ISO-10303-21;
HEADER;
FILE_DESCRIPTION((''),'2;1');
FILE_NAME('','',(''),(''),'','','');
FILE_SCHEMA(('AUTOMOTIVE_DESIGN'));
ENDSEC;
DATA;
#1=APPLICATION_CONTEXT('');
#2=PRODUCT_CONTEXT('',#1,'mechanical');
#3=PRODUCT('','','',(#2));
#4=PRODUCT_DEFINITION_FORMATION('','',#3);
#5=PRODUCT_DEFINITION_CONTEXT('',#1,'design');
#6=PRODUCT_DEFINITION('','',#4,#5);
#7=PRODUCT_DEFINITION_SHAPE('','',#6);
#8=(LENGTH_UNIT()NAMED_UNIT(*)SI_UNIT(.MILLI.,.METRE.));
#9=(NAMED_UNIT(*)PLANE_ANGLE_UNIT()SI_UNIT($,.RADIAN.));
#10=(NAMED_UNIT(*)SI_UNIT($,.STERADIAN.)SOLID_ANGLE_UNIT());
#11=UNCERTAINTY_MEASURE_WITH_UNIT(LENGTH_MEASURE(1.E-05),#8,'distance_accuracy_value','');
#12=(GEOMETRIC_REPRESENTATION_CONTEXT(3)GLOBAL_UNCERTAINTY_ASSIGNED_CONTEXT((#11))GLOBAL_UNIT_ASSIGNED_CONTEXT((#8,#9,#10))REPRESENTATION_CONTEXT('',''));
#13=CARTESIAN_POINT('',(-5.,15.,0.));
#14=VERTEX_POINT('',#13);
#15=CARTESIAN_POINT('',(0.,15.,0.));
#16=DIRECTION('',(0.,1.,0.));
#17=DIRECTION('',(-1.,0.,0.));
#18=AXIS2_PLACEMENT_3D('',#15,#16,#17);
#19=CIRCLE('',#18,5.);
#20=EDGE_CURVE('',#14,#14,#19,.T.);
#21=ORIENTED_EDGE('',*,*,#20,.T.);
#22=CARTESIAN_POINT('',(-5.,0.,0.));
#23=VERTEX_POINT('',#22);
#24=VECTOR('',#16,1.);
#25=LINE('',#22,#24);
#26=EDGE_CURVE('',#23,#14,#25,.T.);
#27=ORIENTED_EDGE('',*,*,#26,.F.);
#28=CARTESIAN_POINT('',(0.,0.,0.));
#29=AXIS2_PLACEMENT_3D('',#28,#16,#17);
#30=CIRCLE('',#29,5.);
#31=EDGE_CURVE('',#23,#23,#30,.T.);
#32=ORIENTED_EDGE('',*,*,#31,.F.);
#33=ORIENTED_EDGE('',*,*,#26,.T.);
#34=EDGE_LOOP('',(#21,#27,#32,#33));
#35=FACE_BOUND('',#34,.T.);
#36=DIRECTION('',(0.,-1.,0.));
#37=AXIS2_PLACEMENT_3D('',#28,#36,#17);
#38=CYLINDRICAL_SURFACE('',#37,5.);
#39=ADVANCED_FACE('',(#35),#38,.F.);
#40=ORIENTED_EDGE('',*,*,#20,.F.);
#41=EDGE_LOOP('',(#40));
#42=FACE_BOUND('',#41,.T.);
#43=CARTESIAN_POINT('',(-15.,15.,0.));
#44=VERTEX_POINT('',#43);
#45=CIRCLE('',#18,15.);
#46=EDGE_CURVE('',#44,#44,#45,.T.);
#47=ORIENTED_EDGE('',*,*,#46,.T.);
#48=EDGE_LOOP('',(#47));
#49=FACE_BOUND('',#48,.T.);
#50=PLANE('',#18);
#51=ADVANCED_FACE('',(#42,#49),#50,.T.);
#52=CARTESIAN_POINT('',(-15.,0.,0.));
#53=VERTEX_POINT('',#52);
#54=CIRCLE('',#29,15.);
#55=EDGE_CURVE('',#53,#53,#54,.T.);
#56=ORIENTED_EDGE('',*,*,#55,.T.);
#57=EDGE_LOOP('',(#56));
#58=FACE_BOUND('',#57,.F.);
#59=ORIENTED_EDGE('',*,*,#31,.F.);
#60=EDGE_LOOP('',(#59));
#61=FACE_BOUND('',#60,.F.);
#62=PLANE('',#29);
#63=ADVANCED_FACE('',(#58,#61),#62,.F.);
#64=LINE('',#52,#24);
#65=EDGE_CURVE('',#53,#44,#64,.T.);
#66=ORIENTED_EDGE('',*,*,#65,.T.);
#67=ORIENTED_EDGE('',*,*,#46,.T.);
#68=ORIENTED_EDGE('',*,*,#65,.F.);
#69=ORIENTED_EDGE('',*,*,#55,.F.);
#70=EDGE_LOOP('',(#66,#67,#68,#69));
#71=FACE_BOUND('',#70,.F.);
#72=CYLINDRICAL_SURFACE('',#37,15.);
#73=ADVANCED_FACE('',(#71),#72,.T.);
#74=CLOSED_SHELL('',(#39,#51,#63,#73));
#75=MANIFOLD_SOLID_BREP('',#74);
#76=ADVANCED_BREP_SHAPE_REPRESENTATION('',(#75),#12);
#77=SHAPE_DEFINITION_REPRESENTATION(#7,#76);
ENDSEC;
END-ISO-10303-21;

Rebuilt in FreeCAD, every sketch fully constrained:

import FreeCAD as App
import Part
import Sketcher
Q = App.Units.Quantity

doc = App.newDocument("Part")
body = doc.addObject("PartDesign::Body", "Body")

# Sketch on XZ plane
sketch1 = body.newObject("Sketcher::SketchObject", "Sketch")
sketch1.AttachmentSupport = (doc.getObject("XZ_Plane"), [""])
sketch1.MapMode = "FlatFace"
sketch1.addGeometry([
    Part.Circle(App.Vector(0, 0, 0), App.Vector(0, 0, 1), 15),
    Part.Circle(App.Vector(0, 0, 0), App.Vector(0, 0, 1), 5),
], False)
sketch1.addConstraint([
    Sketcher.Constraint("Coincident", 0, 3, -1, 1),
    Sketcher.Constraint("Coincident", 1, 3, -1, 1),
    Sketcher.Constraint("Diameter", 0, Q("30 mm")),
    Sketcher.Constraint("Diameter", 1, Q("10 mm")),
])
pad1 = body.newObject("PartDesign::Pad", "Pad")
pad1.Profile = sketch1
pad1.Length = 15
pad1.Reversed = True

doc.recompute()
